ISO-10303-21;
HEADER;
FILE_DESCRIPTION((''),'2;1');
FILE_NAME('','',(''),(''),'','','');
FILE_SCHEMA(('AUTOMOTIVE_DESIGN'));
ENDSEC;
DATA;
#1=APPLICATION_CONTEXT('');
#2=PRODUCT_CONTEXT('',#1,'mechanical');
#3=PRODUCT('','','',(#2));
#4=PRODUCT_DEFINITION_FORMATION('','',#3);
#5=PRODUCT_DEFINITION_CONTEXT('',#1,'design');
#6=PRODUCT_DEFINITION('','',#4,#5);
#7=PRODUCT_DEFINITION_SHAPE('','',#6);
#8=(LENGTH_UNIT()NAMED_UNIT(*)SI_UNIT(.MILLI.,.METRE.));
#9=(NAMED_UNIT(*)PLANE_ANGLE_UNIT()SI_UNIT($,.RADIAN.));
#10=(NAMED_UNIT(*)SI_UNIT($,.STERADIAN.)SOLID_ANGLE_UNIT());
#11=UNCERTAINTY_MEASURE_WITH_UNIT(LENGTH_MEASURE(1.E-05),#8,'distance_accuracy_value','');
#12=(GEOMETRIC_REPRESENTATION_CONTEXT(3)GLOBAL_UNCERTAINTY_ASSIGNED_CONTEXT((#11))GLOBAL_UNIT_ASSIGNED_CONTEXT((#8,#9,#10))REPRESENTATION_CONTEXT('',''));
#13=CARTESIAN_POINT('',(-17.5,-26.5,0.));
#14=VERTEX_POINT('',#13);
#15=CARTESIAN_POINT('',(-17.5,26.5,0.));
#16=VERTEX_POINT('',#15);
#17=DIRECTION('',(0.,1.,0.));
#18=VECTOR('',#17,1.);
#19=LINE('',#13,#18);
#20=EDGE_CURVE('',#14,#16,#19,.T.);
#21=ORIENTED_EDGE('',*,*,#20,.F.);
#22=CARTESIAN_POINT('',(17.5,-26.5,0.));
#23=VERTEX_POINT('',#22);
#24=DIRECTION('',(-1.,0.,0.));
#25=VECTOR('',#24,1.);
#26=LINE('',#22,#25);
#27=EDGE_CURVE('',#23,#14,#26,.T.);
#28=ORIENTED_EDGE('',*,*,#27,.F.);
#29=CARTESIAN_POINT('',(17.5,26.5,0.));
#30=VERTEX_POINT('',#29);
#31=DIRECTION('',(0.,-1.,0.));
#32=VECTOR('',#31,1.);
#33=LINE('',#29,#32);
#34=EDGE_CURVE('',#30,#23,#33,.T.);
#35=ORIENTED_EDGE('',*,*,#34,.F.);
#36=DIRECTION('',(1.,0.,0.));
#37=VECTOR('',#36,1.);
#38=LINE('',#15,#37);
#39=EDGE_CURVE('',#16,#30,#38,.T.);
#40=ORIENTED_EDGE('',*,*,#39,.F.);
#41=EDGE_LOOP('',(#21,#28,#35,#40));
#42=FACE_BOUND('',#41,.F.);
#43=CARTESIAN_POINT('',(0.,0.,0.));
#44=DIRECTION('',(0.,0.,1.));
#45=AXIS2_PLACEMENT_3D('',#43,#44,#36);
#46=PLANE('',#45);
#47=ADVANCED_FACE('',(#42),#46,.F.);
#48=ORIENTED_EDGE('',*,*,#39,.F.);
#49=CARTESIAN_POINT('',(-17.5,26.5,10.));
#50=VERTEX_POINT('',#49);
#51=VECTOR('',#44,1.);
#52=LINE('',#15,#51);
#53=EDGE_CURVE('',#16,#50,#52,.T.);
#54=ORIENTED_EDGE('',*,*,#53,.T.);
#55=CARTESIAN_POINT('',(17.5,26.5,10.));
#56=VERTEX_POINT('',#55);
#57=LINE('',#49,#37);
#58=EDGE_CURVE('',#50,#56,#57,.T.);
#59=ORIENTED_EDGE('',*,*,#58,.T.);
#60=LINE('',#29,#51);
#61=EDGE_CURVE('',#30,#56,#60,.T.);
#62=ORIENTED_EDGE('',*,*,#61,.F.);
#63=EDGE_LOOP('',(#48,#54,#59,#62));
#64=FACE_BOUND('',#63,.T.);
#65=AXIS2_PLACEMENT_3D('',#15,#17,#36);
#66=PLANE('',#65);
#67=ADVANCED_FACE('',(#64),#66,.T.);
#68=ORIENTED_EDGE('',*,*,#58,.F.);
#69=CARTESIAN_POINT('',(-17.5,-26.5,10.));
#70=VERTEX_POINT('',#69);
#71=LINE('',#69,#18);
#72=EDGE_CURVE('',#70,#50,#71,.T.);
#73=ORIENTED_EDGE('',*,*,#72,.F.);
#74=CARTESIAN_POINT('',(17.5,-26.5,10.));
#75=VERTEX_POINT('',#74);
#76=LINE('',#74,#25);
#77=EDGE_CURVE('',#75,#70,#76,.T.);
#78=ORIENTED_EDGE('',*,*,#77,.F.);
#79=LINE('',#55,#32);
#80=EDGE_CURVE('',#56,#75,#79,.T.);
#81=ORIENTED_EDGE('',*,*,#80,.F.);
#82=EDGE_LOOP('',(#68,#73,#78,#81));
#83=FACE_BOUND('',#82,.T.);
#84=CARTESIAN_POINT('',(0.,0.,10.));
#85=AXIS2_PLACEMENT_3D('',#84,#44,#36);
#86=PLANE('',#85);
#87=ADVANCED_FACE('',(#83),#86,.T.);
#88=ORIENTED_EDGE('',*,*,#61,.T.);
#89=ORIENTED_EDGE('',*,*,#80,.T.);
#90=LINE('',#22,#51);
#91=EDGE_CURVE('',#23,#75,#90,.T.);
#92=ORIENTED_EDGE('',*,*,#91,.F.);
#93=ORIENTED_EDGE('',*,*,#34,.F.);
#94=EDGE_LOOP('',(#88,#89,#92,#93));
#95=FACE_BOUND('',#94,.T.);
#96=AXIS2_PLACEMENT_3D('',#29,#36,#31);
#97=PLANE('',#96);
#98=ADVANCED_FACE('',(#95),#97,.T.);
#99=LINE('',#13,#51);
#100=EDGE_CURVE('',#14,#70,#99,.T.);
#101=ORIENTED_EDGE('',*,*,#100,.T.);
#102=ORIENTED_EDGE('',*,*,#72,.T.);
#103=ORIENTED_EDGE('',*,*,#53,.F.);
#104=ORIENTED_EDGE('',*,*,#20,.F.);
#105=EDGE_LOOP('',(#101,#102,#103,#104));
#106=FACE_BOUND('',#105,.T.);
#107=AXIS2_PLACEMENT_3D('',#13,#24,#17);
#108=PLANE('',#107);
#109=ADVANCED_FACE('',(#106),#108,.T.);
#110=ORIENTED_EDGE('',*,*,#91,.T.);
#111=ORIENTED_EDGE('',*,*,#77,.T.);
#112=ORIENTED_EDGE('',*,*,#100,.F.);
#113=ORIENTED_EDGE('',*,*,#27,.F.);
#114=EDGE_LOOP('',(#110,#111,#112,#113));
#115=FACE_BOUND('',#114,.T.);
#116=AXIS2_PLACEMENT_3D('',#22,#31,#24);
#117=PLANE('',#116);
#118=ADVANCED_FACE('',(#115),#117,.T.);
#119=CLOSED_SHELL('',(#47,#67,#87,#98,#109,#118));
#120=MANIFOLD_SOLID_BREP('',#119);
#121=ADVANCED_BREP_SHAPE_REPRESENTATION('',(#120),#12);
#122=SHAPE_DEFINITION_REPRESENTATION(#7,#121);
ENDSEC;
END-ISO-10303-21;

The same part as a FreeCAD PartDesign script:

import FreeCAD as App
import Part
import Sketcher

V = App.Vector


def add_polygon(sketch, points):
    """Adds a closed chain of lines whose ends are joined by coincident constraints."""
    first, n = sketch.GeometryCount, len(points)
    for a, b in zip(points, points[1:] + points[:1]):
        sketch.addGeometry(Part.LineSegment(App.Vector(*a, 0), App.Vector(*b, 0)), False)
    for i in range(n):
        sketch.addConstraint(Sketcher.Constraint("Coincident", first + i, 2, first + (i + 1) % n, 1))

doc = App.newDocument("Part")
body = doc.addObject("PartDesign::Body", "Body")

# Sketch on XY plane
sketch1 = body.newObject("Sketcher::SketchObject", "Sketch")
sketch1.AttachmentSupport = (doc.getObject("XY_Plane"), [""])
sketch1.MapMode = "FlatFace"
add_polygon(sketch1, [(18, 26), (-18, 26), (-18, -26), (18, -26)])  # lines 0-3
sketch1.addConstraint([
    Sketcher.Constraint("Horizontal", 0),
    Sketcher.Constraint("Vertical", 1),
    Sketcher.Constraint("Horizontal", 2),
    Sketcher.Constraint("Vertical", 3),
    Sketcher.Constraint("Symmetric", 0, 2, 2, 2, -1, 1),
    Sketcher.Constraint("DistanceX", 0, 2, 0, 1, 35.0),
    Sketcher.Constraint("DistanceY", 1, 2, 1, 1, 53.0),
])
pad1 = body.newObject("PartDesign::Pad", "Pad")
pad1.Profile = sketch1
pad1.Length = 10

doc.recompute()
